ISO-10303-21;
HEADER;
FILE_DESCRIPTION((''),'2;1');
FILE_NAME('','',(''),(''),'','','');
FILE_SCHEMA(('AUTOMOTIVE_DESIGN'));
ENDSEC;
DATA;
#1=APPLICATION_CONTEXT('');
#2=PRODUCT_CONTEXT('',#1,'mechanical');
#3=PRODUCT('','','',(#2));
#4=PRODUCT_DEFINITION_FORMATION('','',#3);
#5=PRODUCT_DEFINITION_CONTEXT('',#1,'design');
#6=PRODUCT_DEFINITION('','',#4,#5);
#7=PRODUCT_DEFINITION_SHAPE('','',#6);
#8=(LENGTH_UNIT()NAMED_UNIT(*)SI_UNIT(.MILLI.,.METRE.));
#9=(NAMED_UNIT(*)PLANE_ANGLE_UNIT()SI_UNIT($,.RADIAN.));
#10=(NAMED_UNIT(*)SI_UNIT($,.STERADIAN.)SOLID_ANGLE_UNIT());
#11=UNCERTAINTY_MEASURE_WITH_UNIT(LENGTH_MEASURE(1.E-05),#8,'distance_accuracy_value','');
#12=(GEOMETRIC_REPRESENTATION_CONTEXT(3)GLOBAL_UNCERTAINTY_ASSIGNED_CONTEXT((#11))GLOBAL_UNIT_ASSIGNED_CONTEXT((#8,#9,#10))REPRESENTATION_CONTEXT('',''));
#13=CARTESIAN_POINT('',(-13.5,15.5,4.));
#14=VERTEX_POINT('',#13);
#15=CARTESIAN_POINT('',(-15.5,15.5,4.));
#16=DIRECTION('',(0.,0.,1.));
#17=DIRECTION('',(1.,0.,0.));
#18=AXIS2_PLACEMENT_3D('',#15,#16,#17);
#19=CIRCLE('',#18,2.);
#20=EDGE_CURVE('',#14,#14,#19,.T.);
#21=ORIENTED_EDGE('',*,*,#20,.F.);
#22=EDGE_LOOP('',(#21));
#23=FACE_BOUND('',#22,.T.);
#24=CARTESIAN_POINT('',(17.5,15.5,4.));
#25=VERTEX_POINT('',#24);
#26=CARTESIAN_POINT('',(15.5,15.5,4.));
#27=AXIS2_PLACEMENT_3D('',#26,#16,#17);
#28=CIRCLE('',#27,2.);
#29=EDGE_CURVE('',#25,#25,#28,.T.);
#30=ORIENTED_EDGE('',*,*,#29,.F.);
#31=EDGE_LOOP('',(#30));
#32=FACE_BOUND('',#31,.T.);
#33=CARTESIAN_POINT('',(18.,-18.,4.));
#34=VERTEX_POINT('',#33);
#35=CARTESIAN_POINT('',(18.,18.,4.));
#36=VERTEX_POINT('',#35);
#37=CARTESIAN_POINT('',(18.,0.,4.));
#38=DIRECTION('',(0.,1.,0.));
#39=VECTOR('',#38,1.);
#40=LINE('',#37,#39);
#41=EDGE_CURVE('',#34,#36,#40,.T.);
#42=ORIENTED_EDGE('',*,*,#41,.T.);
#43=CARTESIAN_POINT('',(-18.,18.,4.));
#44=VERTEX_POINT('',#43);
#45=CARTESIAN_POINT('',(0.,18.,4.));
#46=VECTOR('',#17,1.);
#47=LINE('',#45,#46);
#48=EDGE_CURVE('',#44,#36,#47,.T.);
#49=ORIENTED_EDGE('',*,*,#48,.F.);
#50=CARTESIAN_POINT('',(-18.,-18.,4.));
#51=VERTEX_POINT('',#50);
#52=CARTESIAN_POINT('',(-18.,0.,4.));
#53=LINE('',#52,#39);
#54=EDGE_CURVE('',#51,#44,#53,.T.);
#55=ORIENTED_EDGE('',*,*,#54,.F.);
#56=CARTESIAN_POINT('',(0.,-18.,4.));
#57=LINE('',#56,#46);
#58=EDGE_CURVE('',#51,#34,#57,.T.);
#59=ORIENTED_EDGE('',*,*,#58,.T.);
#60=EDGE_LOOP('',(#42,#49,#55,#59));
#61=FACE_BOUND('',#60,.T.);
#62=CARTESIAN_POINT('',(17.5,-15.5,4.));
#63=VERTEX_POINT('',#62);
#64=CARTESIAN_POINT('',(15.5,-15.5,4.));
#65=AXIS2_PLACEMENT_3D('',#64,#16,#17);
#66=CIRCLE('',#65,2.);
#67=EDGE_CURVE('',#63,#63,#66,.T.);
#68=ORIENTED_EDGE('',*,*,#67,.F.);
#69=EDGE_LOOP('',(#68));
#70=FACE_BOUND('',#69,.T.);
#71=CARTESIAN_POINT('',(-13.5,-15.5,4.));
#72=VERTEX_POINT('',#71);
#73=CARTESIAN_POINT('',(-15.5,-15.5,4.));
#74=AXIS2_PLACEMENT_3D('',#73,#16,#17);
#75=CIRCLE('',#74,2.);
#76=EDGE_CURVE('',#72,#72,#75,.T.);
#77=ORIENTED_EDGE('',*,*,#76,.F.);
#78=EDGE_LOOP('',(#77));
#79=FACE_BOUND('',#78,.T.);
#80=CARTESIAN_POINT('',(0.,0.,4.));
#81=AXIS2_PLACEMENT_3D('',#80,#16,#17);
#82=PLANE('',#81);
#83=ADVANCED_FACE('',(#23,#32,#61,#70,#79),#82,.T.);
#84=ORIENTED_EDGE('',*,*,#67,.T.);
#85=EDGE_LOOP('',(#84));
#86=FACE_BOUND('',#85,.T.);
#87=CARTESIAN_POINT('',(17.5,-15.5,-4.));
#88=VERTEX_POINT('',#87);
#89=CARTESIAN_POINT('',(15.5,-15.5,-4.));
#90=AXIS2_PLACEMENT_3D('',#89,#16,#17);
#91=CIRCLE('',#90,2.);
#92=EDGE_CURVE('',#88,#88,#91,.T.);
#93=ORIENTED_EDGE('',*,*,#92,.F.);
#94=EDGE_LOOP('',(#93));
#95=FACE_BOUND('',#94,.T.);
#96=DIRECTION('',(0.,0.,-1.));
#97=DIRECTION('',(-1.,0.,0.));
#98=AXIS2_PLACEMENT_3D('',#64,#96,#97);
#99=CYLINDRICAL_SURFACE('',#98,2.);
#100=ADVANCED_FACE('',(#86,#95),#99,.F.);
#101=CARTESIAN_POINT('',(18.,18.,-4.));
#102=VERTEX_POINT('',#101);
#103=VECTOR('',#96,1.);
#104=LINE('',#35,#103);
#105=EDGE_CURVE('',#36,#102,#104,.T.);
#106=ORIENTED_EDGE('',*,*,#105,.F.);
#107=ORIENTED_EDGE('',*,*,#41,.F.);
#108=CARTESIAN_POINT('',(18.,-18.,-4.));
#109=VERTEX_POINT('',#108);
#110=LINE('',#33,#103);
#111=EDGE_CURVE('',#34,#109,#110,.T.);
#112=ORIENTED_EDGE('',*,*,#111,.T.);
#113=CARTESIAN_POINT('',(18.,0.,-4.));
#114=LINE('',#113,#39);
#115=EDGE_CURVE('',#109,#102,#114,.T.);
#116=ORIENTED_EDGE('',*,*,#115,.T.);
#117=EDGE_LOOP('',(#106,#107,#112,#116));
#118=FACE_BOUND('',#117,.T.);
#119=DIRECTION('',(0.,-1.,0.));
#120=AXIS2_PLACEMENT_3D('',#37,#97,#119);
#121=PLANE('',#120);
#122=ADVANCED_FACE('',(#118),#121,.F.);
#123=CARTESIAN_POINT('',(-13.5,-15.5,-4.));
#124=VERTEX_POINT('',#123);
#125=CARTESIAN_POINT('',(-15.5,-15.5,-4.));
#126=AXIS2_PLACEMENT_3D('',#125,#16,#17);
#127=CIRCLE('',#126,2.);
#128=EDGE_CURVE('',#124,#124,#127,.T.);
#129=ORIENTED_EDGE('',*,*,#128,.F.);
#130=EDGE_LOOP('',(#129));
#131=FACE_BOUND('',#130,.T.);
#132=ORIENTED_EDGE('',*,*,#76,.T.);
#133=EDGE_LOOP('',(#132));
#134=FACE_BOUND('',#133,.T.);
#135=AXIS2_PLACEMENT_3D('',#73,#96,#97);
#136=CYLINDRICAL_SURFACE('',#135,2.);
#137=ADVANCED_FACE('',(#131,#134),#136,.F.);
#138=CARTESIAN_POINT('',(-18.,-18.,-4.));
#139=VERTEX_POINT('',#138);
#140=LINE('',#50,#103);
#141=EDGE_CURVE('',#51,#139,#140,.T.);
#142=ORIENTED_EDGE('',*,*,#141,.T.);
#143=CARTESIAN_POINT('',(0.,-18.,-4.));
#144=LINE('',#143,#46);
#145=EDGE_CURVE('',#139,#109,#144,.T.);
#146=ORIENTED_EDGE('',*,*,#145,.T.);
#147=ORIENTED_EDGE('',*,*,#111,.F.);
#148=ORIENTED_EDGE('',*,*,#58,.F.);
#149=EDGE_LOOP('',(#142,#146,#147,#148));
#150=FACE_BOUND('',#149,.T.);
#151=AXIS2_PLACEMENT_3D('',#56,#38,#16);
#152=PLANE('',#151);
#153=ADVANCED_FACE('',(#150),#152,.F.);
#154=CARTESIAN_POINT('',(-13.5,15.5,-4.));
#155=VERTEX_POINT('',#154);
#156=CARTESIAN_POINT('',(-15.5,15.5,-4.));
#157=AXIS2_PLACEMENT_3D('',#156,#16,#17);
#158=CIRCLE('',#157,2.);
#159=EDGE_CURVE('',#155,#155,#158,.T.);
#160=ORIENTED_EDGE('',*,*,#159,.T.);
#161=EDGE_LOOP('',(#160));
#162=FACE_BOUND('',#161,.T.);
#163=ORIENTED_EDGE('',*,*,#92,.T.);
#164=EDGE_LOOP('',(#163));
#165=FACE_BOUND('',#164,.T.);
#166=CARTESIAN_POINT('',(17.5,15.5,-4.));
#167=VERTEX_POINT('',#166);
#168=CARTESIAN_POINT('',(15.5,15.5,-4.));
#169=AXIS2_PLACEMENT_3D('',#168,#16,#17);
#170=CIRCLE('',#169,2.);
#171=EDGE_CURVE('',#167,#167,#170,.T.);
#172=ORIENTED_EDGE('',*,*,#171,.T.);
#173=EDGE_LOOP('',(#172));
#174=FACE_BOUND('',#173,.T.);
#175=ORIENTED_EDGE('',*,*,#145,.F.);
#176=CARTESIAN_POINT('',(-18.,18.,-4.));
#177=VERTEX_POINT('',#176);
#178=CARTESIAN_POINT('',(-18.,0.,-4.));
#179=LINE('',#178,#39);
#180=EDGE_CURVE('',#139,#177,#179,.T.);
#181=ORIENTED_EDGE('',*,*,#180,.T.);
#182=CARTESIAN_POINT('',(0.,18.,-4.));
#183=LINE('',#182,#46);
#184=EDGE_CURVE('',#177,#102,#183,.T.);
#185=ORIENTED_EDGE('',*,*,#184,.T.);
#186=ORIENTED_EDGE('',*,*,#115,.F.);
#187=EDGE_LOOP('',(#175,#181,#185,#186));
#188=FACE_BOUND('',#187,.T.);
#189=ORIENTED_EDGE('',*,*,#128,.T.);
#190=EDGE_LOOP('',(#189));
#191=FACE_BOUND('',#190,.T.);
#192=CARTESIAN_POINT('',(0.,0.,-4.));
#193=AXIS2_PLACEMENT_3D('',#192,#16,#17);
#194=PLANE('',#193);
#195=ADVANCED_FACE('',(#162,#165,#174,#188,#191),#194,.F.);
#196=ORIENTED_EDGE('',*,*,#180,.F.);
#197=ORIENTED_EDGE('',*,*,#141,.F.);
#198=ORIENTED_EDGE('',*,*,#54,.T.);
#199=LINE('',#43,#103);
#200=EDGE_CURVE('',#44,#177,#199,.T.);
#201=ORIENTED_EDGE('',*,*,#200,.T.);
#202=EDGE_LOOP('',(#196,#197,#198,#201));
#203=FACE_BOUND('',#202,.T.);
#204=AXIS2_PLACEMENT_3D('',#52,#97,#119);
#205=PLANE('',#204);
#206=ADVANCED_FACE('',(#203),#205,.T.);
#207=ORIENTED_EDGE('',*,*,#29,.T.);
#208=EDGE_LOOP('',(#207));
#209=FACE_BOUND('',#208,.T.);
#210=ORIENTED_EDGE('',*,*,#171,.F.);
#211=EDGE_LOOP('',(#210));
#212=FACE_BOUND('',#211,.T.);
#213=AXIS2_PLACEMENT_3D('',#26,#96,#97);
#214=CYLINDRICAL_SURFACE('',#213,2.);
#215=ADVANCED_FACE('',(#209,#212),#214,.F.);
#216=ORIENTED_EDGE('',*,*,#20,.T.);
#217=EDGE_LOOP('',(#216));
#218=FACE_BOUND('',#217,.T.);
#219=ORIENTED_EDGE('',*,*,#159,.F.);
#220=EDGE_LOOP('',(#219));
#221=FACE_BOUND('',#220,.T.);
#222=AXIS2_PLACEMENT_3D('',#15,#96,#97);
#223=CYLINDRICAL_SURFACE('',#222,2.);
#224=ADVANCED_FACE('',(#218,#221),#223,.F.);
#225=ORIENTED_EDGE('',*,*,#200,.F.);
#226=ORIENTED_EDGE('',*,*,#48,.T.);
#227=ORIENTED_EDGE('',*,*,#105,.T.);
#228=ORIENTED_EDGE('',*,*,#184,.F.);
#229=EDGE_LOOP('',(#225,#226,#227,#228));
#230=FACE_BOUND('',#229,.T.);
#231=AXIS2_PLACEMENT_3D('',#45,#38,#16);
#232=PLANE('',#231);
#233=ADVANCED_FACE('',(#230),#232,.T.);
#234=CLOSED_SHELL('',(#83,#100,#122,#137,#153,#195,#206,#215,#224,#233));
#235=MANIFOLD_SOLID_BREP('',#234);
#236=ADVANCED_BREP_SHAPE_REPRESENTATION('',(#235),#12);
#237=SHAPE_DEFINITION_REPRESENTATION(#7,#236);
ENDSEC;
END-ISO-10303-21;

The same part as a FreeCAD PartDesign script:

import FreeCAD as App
import Part
import Sketcher
Q = App.Units.Quantity


def add_polygon(sketch, points):
    """Adds a closed chain of lines whose ends are joined by coincident constraints."""
    first, n = sketch.GeometryCount, len(points)
    for a, b in zip(points, points[1:] + points[:1]):
        sketch.addGeometry(Part.LineSegment(App.Vector(*a, 0), App.Vector(*b, 0)), False)
    for i in range(n):
        sketch.addConstraint(Sketcher.Constraint("Coincident", first + i, 2, first + (i + 1) % n, 1))

doc = App.newDocument("Part")
params = doc.addObject("Spreadsheet::Sheet", "Params")
for row, (alias, value) in enumerate([
    ("sketch1_diameter", "4 mm"),
    ("sketch1_width", "36 mm"),
    ("pad1_length", "8 mm"),
], start=1):
    params.set(f"A{row}", alias)
    params.set(f"B{row}", "=" + value)
    params.setAlias(f"B{row}", alias)

body = doc.addObject("PartDesign::Body", "Body")

sketch1 = doc.addObject("Sketcher::SketchObject", "Sketch")
body.addObject(sketch1)
sketch1.AttachmentSupport = (doc.XY_Plane, [""])
sketch1.MapMode = "FlatFace"
add_polygon(sketch1, [(-18, 18), (-18, -18), (18, -18), (18, 18)])
sketch1.addGeometry(Part.Circle(App.Vector(-15.5, -15.5, 0), App.Vector(0, 0, 1), 2), False)
sketch1.addGeometry(Part.Circle(App.Vector(15.5, -15.5, 0), App.Vector(0, 0, 1), 2), False)
sketch1.addGeometry(Part.Circle(App.Vector(-15.5, 15.5, 0), App.Vector(0, 0, 1), 2), False)
sketch1.addGeometry(Part.Circle(App.Vector(15.5, 15.5, 0), App.Vector(0, 0, 1), 2), False)
sketch1.addConstraint([
    Sketcher.Constraint("Vertical", 0),
    Sketcher.Constraint("Horizontal", 1),
    Sketcher.Constraint("Vertical", 2),
    Sketcher.Constraint("Horizontal", 3),
    Sketcher.Constraint("Equal", 4, 5),
    Sketcher.Constraint("Equal", 5, 6),
    Sketcher.Constraint("Equal", 6, 7),
    Sketcher.Constraint("Symmetric", 5, 3, 6, 3, -1, 1),
    Sketcher.Constraint("Symmetric", 4, 3, 7, 3, -1, 1),
    Sketcher.Constraint("Symmetric", 0, 2, 2, 2, -1, 1),
    Sketcher.Constraint("Symmetric", 4, 3, 5, 3, -2),
    Sketcher.Constraint("Equal", 3, 0),
    Sketcher.Constraint("Diameter", 4, Q("4 mm")),
    Sketcher.Constraint("DistanceX", 1, 1, 1, 2, Q("36 mm")),
    Sketcher.Constraint("DistanceX", 4, 3, 5, 3, Q("31 mm")),
    Sketcher.Constraint("DistanceY", 4, 3, 6, 3, Q("31 mm")),
])
sketch1.setExpression("Constraints[16]", "Params.sketch1_diameter")
sketch1.setExpression("Constraints[17]", "Params.sketch1_width")
pad1 = doc.addObject("PartDesign::Pad", "Pad")
body.addObject(pad1)
pad1.Profile = sketch1
pad1.setExpression("Length", "Params.pad1_length")
pad1.Midplane = True

doc.recompute()
